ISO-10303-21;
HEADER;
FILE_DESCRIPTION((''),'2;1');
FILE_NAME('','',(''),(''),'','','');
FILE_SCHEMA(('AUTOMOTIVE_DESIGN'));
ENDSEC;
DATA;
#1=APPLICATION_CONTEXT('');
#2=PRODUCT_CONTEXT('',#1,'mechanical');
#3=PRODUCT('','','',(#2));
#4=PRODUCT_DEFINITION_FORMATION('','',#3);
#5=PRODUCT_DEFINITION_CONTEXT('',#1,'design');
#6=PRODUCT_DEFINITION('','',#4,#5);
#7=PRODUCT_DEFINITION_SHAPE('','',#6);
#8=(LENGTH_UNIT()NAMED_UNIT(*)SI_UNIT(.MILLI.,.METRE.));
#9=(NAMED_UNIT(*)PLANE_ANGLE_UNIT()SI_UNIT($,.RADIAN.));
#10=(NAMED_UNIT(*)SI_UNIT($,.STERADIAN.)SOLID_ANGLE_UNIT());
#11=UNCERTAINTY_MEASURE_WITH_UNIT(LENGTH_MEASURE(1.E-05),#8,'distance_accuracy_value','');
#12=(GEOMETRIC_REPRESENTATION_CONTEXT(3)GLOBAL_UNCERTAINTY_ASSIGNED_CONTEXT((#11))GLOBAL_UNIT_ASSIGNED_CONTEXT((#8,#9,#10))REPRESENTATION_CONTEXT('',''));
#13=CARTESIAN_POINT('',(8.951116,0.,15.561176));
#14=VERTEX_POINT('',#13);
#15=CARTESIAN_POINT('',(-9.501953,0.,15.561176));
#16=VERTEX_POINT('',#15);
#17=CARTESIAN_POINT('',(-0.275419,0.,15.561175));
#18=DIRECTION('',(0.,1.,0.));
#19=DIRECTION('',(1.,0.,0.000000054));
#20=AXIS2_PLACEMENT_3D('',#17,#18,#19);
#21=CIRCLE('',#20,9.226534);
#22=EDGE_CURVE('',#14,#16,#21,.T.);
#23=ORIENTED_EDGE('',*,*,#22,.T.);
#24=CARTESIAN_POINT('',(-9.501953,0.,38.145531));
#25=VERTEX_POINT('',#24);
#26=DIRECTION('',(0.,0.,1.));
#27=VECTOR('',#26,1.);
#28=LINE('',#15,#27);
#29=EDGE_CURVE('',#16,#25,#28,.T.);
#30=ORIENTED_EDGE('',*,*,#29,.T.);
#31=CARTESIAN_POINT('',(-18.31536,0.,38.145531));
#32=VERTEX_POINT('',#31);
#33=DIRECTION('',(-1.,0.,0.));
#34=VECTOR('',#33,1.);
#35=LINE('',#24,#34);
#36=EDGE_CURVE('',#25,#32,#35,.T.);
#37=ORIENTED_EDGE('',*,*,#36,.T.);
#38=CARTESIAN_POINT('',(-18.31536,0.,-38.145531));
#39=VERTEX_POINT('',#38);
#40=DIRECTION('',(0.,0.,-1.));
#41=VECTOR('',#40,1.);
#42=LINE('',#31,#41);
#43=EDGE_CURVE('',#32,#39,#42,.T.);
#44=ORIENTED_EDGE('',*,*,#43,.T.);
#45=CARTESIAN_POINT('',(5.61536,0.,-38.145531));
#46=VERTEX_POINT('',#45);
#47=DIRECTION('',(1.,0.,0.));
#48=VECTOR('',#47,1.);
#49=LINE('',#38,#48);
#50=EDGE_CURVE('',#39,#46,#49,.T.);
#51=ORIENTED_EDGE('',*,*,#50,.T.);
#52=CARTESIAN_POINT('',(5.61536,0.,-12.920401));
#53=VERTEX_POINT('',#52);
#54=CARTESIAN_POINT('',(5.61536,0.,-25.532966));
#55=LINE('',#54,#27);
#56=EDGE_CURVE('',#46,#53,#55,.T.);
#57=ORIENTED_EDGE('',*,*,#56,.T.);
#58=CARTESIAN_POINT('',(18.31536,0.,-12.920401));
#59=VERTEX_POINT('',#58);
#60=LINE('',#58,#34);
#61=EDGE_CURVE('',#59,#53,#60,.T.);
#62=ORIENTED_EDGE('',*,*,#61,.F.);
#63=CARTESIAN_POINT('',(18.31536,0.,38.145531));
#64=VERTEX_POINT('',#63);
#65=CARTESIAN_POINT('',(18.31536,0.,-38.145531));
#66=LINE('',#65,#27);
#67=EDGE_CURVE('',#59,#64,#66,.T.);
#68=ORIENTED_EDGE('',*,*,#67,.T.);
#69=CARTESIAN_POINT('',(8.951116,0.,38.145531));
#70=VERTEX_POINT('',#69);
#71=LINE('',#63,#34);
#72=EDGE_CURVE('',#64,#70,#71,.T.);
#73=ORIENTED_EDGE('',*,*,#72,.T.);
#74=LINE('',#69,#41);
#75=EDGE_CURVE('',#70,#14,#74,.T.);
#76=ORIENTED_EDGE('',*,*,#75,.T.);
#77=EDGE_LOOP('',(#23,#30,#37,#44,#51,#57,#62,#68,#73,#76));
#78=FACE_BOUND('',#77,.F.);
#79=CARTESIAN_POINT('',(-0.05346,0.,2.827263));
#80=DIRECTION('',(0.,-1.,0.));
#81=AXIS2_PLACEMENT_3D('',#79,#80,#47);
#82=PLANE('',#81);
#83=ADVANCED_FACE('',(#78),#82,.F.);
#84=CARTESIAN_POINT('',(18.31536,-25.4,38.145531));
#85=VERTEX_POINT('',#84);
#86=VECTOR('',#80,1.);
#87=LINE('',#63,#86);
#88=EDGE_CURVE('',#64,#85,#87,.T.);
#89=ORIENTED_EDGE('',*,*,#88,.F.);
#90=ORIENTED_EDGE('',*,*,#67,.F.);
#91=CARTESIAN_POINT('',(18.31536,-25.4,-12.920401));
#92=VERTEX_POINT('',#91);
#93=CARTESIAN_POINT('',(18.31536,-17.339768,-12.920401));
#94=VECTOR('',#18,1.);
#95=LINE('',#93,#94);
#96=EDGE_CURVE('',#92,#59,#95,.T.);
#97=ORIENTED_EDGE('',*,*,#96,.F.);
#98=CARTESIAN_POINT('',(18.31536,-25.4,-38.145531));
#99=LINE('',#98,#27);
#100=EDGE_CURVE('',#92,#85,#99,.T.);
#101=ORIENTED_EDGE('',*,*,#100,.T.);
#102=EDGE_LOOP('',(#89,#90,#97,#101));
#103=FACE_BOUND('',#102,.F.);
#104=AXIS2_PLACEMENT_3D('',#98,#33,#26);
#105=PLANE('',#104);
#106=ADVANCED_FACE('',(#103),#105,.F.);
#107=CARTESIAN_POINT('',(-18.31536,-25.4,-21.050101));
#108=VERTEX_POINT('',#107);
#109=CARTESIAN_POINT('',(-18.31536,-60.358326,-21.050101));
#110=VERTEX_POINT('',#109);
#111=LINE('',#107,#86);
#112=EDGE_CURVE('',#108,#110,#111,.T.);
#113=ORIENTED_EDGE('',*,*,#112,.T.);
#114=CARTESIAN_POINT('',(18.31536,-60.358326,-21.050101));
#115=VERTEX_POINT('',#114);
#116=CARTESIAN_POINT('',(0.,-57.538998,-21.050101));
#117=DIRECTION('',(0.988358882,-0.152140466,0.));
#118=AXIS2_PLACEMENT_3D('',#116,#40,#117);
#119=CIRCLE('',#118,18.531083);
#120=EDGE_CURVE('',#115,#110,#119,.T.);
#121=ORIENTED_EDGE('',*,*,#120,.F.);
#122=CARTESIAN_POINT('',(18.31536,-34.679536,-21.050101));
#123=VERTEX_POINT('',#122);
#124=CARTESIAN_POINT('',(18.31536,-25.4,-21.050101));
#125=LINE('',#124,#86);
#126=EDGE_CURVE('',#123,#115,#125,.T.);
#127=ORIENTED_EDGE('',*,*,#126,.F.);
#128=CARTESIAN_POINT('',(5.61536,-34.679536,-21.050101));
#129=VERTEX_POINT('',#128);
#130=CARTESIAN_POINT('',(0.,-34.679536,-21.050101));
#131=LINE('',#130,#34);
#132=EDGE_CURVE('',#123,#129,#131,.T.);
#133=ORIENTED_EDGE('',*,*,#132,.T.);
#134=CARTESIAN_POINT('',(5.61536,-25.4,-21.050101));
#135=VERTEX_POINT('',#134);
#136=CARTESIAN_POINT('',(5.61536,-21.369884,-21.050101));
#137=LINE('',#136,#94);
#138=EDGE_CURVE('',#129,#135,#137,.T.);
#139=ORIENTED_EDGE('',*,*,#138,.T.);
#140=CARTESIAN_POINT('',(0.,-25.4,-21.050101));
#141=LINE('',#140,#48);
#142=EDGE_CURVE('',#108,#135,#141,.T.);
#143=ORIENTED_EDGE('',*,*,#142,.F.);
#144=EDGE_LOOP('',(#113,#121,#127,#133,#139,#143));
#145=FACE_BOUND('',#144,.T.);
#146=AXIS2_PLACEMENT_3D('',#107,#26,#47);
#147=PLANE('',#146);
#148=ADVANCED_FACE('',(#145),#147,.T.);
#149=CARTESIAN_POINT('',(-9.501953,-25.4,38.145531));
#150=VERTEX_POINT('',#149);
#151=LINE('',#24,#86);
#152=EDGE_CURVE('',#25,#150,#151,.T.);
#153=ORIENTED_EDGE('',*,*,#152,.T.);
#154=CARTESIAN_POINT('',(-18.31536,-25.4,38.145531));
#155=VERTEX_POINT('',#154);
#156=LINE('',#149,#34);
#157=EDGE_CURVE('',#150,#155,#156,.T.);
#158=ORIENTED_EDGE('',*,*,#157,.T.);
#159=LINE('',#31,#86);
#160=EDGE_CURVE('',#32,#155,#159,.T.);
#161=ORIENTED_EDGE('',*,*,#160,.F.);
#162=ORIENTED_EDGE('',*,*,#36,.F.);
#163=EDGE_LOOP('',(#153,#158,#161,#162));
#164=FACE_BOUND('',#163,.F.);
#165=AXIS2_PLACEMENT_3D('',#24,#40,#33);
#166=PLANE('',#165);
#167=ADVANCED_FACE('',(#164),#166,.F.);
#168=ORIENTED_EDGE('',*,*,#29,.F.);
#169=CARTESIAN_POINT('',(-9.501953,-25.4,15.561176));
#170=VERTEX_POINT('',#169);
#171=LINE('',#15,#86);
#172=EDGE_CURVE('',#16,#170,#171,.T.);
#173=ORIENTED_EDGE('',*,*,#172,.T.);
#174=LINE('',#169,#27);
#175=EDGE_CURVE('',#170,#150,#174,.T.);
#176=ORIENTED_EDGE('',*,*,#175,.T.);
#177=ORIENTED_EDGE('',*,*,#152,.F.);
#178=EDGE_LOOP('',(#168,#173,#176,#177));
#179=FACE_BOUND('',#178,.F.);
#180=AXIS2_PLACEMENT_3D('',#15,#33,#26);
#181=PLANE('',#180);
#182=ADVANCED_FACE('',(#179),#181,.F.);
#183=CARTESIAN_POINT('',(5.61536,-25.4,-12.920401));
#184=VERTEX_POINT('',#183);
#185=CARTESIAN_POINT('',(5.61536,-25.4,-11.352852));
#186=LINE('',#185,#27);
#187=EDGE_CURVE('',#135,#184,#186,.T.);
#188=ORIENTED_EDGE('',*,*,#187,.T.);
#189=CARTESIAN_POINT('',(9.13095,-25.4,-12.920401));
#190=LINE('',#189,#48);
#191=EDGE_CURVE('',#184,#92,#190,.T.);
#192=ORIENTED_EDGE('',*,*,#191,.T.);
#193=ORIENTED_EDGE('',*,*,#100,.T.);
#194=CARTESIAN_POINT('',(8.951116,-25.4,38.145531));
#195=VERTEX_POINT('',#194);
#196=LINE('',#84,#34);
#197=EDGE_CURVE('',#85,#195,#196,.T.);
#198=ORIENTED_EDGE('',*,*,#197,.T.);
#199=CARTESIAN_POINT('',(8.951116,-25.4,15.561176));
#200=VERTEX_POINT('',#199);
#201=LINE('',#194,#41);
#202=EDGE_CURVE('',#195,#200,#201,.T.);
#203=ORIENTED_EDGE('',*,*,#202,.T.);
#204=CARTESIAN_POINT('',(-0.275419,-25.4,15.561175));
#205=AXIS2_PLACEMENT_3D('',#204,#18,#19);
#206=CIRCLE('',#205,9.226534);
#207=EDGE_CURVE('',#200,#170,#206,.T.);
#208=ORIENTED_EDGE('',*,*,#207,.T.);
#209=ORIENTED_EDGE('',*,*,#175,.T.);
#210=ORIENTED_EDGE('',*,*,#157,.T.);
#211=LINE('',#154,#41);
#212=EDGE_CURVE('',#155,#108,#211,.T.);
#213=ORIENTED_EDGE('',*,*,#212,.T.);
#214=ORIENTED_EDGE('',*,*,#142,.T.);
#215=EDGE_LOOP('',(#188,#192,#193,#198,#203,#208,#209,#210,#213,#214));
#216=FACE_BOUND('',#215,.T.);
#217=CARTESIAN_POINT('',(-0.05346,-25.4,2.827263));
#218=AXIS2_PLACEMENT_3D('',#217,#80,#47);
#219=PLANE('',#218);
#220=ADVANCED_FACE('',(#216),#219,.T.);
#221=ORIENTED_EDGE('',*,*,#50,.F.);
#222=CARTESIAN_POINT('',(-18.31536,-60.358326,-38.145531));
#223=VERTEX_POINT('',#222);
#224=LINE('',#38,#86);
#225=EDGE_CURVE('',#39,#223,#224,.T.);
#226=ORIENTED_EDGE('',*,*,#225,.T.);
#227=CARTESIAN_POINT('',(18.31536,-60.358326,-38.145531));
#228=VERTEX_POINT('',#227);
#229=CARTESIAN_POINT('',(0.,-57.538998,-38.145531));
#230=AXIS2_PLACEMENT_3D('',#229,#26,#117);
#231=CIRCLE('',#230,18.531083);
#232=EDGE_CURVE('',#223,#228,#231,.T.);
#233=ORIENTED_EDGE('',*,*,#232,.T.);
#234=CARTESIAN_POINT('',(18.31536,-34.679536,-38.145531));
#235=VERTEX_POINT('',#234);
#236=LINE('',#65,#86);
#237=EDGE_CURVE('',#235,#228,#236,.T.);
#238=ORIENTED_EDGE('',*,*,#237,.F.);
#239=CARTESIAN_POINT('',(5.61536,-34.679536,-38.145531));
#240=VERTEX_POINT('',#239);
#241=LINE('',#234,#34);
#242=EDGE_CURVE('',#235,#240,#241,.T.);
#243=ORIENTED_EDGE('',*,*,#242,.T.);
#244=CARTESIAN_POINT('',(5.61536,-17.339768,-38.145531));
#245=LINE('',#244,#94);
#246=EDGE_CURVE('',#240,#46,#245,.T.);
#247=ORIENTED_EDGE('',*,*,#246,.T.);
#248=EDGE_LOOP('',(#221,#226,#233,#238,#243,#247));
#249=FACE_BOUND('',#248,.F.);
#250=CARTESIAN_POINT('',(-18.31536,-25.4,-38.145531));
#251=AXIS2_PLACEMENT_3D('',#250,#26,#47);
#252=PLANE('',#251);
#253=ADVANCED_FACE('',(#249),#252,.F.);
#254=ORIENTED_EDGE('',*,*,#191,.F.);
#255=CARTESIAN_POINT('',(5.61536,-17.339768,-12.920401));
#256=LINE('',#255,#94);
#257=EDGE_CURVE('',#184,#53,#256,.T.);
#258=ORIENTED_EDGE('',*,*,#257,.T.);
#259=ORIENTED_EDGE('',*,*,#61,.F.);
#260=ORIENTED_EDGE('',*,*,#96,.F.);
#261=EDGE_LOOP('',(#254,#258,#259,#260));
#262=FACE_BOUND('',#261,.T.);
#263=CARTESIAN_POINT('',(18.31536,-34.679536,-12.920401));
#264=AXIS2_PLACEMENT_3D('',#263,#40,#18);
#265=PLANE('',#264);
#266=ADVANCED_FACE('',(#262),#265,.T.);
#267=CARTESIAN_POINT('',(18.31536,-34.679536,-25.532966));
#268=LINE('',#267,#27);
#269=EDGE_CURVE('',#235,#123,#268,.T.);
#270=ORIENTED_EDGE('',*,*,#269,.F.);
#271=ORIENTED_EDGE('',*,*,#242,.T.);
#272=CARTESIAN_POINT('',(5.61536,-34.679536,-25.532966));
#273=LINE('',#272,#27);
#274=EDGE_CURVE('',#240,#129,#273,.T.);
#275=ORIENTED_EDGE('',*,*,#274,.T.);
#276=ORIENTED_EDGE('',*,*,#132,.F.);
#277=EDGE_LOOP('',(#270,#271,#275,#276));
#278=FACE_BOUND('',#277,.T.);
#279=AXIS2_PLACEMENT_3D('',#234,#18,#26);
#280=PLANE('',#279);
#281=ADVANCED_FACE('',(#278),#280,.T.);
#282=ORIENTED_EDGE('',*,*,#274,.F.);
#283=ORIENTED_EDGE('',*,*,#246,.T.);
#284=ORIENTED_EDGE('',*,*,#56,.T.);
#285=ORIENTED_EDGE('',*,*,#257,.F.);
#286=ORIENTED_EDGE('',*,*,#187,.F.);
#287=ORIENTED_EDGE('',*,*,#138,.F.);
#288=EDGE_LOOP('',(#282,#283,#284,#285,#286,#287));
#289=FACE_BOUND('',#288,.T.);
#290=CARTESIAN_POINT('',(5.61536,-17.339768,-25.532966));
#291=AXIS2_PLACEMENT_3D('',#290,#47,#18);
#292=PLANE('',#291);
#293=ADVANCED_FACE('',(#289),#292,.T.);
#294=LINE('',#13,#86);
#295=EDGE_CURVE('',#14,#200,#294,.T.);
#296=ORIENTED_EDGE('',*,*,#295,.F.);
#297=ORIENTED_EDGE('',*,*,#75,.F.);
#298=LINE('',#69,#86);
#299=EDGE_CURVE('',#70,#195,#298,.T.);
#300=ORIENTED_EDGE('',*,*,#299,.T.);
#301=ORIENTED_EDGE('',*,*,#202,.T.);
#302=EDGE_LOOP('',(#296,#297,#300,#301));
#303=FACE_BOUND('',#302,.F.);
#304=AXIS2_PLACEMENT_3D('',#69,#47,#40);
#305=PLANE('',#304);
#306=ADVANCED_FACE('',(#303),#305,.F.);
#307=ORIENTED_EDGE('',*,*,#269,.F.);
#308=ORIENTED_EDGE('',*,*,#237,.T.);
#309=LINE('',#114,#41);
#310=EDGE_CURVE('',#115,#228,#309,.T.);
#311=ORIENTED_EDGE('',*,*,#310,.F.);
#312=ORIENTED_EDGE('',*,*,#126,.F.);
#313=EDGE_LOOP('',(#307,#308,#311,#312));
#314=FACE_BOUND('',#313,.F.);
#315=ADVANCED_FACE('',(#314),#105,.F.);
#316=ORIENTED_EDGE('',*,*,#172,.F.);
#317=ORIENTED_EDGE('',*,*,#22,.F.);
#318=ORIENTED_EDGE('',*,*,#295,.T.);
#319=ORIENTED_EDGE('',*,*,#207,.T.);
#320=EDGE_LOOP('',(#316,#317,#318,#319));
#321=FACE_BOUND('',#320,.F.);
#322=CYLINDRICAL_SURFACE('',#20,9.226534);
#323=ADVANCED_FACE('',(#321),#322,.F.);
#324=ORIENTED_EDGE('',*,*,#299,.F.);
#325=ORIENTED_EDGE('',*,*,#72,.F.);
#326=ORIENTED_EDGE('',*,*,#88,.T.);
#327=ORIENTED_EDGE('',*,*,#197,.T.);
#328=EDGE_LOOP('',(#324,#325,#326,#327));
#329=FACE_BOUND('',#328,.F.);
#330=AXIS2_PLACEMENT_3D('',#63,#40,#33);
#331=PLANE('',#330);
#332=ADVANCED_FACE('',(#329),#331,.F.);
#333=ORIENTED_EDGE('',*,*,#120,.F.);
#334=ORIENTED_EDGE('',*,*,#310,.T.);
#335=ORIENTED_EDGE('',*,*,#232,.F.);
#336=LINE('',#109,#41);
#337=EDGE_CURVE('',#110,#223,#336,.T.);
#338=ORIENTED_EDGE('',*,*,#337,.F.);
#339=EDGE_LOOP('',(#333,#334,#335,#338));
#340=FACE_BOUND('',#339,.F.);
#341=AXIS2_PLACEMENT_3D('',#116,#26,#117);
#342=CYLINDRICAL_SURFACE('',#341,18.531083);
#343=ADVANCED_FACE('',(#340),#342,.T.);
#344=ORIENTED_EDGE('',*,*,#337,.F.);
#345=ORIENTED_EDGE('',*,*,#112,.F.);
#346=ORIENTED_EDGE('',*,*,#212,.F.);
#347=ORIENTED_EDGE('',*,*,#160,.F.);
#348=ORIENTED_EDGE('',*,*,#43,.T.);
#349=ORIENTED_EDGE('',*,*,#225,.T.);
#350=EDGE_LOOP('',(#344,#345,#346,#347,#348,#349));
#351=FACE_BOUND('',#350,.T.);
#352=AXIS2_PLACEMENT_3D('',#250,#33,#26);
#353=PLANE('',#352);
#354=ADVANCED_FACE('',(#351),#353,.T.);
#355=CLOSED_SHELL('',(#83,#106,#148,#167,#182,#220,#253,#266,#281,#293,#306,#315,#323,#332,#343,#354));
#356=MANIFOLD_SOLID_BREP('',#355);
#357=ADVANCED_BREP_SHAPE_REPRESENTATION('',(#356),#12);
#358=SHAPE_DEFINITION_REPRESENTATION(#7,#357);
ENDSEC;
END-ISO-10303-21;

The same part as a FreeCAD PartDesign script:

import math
import FreeCAD as App
import Part
import Sketcher

V = App.Vector
Q = App.Units.Quantity


def add_polygon(sketch, points):
    """Adds a closed chain of lines whose ends are joined by coincident constraints."""
    first, n = sketch.GeometryCount, len(points)
    for a, b in zip(points, points[1:] + points[:1]):
        sketch.addGeometry(Part.LineSegment(App.Vector(*a, 0), App.Vector(*b, 0)), False)
    for i in range(n):
        sketch.addConstraint(Sketcher.Constraint("Coincident", first + i, 2, first + (i + 1) % n, 1))

doc = App.newDocument("Part")
body = doc.addObject("PartDesign::Body", "Body")

sketch1 = doc.addObject("Sketcher::SketchObject", "Sketch")
body.addObject(sketch1)
sketch1.AttachmentSupport = (doc.XZ_Plane, [""])
sketch1.MapMode = "FlatFace"
sketch1.addGeometry([
    Part.LineSegment(V(-10, 38, 0), V(-18, 38, 0)),
    Part.LineSegment(V(-18, 38, 0), V(-18, -38, 0)),
    Part.LineSegment(V(-18, -38, 0), V(18, -38, 0)),
    Part.LineSegment(V(18, -38, 0), V(18, 38, 0)),
    Part.LineSegment(V(18, 38, 0), V(9, 38, 0)),
    Part.LineSegment(V(9, 38, 0), V(9, 16, 0)),
    Part.ArcOfCircle(Part.Circle(V(0, 16, 0), V(0, 0, 1), 9), math.radians(180), math.radians(360)),
    Part.LineSegment(V(-10, 16, 0), V(-10, 38, 0)),
], False)
sketch1.addConstraint([
    Sketcher.Constraint("Coincident", 0, 2, 1, 1),
    Sketcher.Constraint("Coincident", 1, 2, 2, 1),
    Sketcher.Constraint("Coincident", 2, 2, 3, 1),
    Sketcher.Constraint("Coincident", 3, 2, 4, 1),
    Sketcher.Constraint("Coincident", 4, 2, 5, 1),
    Sketcher.Constraint("Tangent", 5, 2, 6, 2),
    Sketcher.Constraint("Tangent", 6, 1, 7, 1),
    Sketcher.Constraint("Coincident", 7, 2, 0, 1),
    Sketcher.Constraint("Horizontal", 0),
    Sketcher.Constraint("Vertical", 1),
    Sketcher.Constraint("Horizontal", 2),
    Sketcher.Constraint("Vertical", 3),
    Sketcher.Constraint("Horizontal", 4),
    Sketcher.Constraint("Vertical", 5),
    Sketcher.Constraint("Vertical", 7),
    Sketcher.Constraint("Symmetric", 0, 2, 2, 2, -1, 1),
    Sketcher.Constraint("Horizontal", 0, 2, 3, 2),
    Sketcher.Constraint("Radius", 6, Q("9.226534 mm")),
    Sketcher.Constraint("DistanceX", 2, 1, 2, 2, Q("36.63072 mm")),
    Sketcher.Constraint("DistanceY", 1, 2, 1, 1, Q("76.291062 mm")),
    Sketcher.Constraint("DistanceX", 0, 2, 0, 1, Q("8.813407 mm")),
    Sketcher.Constraint("DistanceY", 5, 2, 5, 1, Q("22.584355 mm")),
])
pad1 = doc.addObject("PartDesign::Pad", "Pad")
body.addObject(pad1)
pad1.Profile = sketch1
pad1.Length = Q("1 in")

sketch2 = doc.addObject("Sketcher::SketchObject", "Sketch001")
body.addObject(sketch2)
sketch2.AttachmentSupport = (doc.XZ_Plane, [""])
sketch2.MapMode = "FlatFace"
sketch2.AttachmentOffset = App.Placement(V(0, 0, 1 * 25.4), App.Rotation())
add_polygon(sketch2, [(-18, -21), (-18, -38), (18, -38), (18, -21)])
sketch2.addConstraint([
    Sketcher.Constraint("Vertical", 0),
    Sketcher.Constraint("Horizontal", 1),
    Sketcher.Constraint("Vertical", 2),
    Sketcher.Constraint("Horizontal", 3),
    Sketcher.Constraint("DistanceX", 1, 1, 1, 2, Q("36.63072 mm")),
    Sketcher.Constraint("DistanceY", 0, 2, 0, 1, Q("17.09543 mm")),
    Sketcher.Constraint("DistanceY", 2, 2, -1, 1, Q("21.050101 mm")),
    Sketcher.Constraint("DistanceX", 0, 2, -1, 1, Q("18.31536 mm")),
])
pad2 = doc.addObject("PartDesign::Pad", "Pad001")
body.addObject(pad2)
pad2.Profile = sketch2
pad2.Length = Q("2 in")

sketch3 = doc.addObject("Sketcher::SketchObject", "Sketch002")
body.addObject(sketch3)
sketch3.AttachmentSupport = (doc.XY_Plane, [""])
sketch3.MapMode = "FlatFace"
sketch3.AttachmentOffset = App.Placement(V(0, 0, -21.050101), App.Rotation())
sketch3.addGeometry([
    Part.ArcOfCircle(Part.Circle(V(0, -58, 0), V(0, 0, 1), 19), math.radians(-171), math.radians(-9)),
    Part.LineSegment(V(-18, -60, 0), V(-18, -76, 0)),
    Part.LineSegment(V(-18, -76, 0), V(18, -76, 0)),
    Part.LineSegment(V(18, -76, 0), V(18, -60, 0)),
], False)
sketch3.addConstraint([
    Sketcher.Constraint("Coincident", 0, 1, 1, 1),
    Sketcher.Constraint("Coincident", 1, 2, 2, 1),
    Sketcher.Constraint("Coincident", 2, 2, 3, 1),
    Sketcher.Constraint("Coincident", 3, 2, 0, 2),
    Sketcher.Constraint("Vertical", 1),
    Sketcher.Constraint("Horizontal", 2),
    Sketcher.Constraint("Vertical", 3),
    Sketcher.Constraint("Symmetric", 0, 1, 3, 2, -2),
    Sketcher.Constraint("DistanceY", 1, 2, -1, 1, Q("3 in")),
    Sketcher.Constraint("Radius", 0, Q("18.531083 mm")),
    Sketcher.Constraint("DistanceX", 2, 1, 2, 2, Q("36.63072 mm")),
    Sketcher.Constraint("DistanceY", 0, 3, -1, 1, Q("57.538998 mm")),
])
pocket1 = doc.addObject("PartDesign::Pocket", "Pocket")
body.addObject(pocket1)
pocket1.Profile = sketch3
pocket1.Type = "ThroughAll"

sketch4 = doc.addObject("Sketcher::SketchObject", "Sketch003")
body.addObject(sketch4)
sketch4.AttachmentSupport = (doc.YZ_Plane, [""])
sketch4.MapMode = "FlatFace"
sketch4.AttachmentOffset = App.Placement(V(0, 0, 18.31536), App.Rotation())
add_polygon(sketch4, [(-35, -13), (-35, -38), (0, -38), (0, -13)])
sketch4.addConstraint([
    Sketcher.Constraint("Vertical", 0),
    Sketcher.Constraint("Horizontal", 1),
    Sketcher.Constraint("Vertical", 2),
    Sketcher.Constraint("Horizontal", 3),
    Sketcher.Constraint("PointOnObject", 1, 2, -2),
    Sketcher.Constraint("DistanceY", 0, 2, 0, 1, Q("25.22513 mm")),
    Sketcher.Constraint("DistanceY", 2, 2, -1, 1, Q("12.920401 mm")),
    Sketcher.Constraint("DistanceX", 1, 1, 1, 2, Q("34.679536 mm")),
])
pocket2 = doc.addObject("PartDesign::Pocket", "Pocket001")
body.addObject(pocket2)
pocket2.Profile = sketch4
pocket2.Length = Q("0.5 in")

doc.recompute()
